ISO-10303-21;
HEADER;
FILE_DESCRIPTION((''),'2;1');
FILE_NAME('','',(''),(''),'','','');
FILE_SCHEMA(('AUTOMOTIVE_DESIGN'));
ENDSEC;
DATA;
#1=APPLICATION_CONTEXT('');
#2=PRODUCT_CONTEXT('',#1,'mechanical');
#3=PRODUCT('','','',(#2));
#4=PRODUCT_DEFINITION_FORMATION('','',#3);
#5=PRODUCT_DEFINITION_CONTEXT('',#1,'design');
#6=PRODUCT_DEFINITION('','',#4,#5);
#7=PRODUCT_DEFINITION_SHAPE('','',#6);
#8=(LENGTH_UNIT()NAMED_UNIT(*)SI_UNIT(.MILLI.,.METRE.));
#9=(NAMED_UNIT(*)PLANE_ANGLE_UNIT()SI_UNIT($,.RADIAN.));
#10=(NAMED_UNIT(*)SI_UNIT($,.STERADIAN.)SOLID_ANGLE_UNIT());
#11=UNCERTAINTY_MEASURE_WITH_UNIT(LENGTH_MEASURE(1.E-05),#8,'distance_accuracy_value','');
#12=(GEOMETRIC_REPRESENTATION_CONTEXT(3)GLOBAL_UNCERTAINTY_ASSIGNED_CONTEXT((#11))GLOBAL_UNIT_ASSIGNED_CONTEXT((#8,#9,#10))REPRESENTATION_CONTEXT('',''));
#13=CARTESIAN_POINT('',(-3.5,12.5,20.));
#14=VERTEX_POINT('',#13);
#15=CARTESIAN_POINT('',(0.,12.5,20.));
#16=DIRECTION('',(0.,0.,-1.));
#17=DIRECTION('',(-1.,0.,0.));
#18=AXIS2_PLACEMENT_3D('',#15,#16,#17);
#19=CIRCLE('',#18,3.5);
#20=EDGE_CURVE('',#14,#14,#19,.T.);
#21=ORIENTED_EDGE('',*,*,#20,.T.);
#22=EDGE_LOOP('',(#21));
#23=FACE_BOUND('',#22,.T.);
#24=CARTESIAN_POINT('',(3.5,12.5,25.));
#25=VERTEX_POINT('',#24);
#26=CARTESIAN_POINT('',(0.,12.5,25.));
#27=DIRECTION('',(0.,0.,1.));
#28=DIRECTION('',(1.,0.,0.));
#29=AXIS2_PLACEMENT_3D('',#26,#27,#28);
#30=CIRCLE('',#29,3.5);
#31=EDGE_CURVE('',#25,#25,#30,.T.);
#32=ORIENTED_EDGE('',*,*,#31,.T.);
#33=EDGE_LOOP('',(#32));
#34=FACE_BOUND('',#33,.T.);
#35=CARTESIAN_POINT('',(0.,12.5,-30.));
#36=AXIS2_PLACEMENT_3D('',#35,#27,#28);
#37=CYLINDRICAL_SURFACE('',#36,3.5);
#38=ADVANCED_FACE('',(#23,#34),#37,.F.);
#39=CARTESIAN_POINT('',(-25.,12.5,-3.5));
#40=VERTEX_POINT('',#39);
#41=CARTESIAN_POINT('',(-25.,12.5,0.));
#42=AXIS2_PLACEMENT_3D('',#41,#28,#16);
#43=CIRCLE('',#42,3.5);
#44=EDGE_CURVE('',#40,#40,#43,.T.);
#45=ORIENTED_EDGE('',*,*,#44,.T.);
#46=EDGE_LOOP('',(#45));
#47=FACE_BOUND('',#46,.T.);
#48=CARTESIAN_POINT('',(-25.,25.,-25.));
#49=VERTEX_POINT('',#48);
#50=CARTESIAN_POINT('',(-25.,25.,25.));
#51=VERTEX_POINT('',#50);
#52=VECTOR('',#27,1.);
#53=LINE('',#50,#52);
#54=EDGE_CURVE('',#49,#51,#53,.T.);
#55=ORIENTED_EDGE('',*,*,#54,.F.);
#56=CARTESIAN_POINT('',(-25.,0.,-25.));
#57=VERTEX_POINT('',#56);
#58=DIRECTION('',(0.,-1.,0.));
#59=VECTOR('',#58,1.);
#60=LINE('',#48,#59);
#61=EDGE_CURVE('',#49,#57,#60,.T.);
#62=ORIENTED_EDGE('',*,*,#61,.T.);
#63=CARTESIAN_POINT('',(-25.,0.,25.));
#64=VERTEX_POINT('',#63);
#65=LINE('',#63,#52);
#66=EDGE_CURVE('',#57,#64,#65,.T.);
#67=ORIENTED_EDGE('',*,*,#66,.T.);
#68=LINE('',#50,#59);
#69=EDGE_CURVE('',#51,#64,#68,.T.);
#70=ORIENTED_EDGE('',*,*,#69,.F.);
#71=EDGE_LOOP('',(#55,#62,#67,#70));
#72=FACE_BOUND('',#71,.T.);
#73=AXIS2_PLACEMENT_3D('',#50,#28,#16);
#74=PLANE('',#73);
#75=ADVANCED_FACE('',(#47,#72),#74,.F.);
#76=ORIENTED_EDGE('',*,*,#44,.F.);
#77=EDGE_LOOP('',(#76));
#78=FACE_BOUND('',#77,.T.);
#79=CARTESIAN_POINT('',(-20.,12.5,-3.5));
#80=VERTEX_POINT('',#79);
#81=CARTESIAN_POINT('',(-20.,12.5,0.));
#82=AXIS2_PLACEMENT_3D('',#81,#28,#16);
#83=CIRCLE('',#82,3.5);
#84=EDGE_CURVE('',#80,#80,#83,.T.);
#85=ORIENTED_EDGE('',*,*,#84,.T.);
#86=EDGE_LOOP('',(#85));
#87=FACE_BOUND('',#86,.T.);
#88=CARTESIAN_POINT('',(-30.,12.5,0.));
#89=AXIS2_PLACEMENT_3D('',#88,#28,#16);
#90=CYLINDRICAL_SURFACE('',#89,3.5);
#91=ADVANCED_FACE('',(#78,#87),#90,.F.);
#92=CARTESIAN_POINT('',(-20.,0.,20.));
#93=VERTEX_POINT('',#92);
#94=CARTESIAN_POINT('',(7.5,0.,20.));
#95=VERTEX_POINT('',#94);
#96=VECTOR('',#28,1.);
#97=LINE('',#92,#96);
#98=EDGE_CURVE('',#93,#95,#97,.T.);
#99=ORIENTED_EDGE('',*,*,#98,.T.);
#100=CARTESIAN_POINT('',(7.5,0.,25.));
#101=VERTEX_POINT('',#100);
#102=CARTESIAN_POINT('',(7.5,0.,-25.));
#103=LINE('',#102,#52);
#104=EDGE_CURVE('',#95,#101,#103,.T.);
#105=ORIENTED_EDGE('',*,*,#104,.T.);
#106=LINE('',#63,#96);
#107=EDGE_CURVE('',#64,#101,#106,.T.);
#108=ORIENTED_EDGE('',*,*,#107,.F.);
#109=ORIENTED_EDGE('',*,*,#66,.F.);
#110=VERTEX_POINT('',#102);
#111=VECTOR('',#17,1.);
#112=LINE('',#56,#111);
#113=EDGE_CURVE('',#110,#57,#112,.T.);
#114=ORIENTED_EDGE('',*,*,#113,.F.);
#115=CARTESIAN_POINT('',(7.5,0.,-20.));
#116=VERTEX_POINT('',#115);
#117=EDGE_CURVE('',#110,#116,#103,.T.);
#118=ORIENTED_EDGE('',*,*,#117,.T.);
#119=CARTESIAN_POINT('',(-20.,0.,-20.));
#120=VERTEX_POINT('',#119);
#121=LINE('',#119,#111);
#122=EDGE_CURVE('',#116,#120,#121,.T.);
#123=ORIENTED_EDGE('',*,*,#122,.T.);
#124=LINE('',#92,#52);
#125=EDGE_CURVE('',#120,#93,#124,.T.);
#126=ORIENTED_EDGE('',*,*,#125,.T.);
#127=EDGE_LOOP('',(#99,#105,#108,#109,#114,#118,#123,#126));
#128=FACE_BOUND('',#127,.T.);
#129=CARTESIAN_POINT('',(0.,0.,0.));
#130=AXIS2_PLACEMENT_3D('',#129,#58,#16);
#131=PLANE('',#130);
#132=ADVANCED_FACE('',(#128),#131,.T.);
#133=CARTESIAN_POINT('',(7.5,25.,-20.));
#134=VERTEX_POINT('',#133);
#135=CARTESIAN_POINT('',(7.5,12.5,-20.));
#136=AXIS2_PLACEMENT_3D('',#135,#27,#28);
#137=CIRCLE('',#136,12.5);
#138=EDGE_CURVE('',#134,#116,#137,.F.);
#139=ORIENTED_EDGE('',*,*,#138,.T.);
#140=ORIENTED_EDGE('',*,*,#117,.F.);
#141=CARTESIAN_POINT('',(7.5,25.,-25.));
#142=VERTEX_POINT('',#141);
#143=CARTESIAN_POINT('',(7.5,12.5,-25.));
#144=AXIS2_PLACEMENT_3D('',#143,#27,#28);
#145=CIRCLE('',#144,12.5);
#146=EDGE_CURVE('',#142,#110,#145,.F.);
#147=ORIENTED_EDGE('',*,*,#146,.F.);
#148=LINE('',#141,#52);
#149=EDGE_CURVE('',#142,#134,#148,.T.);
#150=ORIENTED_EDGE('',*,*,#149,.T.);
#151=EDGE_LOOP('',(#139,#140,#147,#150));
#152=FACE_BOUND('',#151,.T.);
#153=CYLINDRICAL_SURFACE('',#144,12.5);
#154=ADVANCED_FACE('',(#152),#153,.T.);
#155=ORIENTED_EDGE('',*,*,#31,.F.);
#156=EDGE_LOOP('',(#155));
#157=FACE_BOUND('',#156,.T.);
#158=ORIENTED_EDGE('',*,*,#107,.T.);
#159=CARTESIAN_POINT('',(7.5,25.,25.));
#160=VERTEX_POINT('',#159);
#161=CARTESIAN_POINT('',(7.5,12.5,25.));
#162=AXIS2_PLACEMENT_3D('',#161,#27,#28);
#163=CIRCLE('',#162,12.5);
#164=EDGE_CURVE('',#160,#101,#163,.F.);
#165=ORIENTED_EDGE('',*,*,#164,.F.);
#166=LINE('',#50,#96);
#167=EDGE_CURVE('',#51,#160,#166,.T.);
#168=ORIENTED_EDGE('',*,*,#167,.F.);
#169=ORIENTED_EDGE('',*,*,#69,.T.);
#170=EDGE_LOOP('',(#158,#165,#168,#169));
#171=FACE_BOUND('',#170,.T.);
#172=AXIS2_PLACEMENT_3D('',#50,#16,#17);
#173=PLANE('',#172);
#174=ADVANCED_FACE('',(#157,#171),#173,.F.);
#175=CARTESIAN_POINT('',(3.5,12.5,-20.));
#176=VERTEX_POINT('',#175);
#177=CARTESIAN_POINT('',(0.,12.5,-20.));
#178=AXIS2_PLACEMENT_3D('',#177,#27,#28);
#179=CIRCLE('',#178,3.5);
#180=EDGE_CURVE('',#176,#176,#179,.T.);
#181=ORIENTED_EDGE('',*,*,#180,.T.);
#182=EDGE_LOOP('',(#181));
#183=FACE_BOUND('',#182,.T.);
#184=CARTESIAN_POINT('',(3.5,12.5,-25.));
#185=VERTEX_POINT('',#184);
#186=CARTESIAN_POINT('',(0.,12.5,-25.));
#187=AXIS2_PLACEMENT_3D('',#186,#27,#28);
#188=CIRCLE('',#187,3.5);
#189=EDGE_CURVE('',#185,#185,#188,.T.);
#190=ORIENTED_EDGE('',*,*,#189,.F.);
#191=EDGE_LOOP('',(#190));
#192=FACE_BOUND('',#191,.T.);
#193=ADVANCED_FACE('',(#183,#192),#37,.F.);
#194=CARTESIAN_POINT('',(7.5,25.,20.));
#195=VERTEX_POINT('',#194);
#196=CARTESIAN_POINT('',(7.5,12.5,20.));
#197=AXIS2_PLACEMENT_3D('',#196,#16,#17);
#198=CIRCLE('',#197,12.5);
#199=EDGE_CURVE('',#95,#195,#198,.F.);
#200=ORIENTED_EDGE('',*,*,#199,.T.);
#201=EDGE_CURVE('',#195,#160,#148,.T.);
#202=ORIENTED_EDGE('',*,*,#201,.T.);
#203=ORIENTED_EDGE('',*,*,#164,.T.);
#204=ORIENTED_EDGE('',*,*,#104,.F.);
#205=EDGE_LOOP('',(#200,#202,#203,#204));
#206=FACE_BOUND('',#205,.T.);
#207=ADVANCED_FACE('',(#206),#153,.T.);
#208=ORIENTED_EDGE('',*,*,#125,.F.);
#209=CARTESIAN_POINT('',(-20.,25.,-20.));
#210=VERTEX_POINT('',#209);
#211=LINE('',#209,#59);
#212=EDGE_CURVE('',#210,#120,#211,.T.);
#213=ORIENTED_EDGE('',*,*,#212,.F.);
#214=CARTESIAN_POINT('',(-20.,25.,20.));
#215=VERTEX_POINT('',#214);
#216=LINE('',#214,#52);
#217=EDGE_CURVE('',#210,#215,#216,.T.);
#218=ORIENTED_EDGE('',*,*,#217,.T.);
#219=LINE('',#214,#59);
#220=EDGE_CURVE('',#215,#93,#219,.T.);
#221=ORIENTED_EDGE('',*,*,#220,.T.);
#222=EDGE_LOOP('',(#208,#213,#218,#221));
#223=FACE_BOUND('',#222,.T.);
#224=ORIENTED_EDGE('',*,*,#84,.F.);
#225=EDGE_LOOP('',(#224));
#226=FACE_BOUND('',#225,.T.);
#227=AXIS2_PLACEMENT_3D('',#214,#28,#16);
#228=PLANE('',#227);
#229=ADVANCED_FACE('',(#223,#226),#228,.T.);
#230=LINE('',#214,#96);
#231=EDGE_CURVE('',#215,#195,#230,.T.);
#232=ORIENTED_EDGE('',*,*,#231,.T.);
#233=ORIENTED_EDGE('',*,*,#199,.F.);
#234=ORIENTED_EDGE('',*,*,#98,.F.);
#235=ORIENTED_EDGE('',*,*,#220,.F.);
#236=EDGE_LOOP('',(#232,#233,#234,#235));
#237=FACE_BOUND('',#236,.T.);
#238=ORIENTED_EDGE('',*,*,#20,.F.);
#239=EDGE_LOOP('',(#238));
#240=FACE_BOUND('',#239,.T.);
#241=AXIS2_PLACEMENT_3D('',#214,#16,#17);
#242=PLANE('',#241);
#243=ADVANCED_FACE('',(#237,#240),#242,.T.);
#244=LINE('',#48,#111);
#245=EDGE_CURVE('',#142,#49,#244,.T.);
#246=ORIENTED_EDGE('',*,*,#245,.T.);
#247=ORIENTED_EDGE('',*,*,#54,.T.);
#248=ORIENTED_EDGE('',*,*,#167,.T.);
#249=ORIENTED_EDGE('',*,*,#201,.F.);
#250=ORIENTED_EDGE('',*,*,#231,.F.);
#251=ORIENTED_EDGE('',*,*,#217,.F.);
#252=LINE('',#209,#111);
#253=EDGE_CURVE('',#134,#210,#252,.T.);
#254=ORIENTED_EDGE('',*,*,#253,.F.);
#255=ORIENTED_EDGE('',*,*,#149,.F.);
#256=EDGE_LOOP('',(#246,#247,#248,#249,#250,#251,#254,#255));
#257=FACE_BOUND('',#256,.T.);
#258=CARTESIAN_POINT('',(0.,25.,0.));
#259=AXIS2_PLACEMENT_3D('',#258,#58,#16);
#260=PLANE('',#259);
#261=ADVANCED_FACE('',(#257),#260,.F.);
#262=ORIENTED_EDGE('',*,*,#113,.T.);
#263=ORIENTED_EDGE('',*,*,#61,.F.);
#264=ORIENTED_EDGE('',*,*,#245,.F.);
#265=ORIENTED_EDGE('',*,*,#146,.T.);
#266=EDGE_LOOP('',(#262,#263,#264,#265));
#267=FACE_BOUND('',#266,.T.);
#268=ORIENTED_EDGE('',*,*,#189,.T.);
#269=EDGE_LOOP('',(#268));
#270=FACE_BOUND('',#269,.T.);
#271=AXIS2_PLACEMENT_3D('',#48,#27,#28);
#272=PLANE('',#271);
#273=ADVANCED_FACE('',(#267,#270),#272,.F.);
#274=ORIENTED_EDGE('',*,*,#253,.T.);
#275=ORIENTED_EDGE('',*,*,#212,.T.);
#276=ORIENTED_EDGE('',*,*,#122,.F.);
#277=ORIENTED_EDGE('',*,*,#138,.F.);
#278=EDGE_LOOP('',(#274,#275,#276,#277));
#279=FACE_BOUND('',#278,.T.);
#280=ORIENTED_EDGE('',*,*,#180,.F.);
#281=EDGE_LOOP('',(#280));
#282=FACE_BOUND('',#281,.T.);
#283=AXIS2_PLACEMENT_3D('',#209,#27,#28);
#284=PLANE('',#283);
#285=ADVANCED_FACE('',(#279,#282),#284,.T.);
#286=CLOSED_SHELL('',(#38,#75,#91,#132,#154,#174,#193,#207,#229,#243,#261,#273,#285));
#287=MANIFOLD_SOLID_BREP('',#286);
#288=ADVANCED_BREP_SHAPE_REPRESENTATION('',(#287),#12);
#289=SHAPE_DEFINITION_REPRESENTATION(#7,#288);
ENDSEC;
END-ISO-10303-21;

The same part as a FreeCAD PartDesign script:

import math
import FreeCAD as App
import Part
import Sketcher

doc = App.newDocument("Part")
body = doc.addObject("PartDesign::Body", "Body")

sketch1 = body.newObject("Sketcher::SketchObject", "Sketch")
sketch1.AttachmentSupport = (doc.getObject("XZ_Plane"), [""])
sketch1.MapMode = "FlatFace"
sketch1.addGeometry([
    Part.LineSegment(App.Vector(-25, -25, 0), App.Vector(-25, 25, 0)),
    Part.LineSegment(App.Vector(-25, 25, 0), App.Vector(25, 25, 0)),
    Part.LineSegment(App.Vector(25, 25, 0), App.Vector(25, -25, 0)),
    Part.LineSegment(App.Vector(25, -25, 0), App.Vector(-25, -25, 0)),
    Part.LineSegment(App.Vector(20, 20, 0), App.Vector(-20, 20, 0)),
    Part.LineSegment(App.Vector(-20, 20, 0), App.Vector(-20, -20, 0)),
    Part.LineSegment(App.Vector(-20, -20, 0), App.Vector(20, -20, 0)),
    Part.LineSegment(App.Vector(20, -20, 0), App.Vector(20, 20, 0)),
], False)
sketch1.addConstraint([
    Sketcher.Constraint("Coincident", 0, 2, 1, 1),
    Sketcher.Constraint("Coincident", 1, 2, 2, 1),
    Sketcher.Constraint("Coincident", 2, 2, 3, 1),
    Sketcher.Constraint("Coincident", 3, 2, 0, 1),
    Sketcher.Constraint("Coincident", 4, 2, 5, 1),
    Sketcher.Constraint("Coincident", 5, 2, 6, 1),
    Sketcher.Constraint("Coincident", 6, 2, 7, 1),
    Sketcher.Constraint("Coincident", 7, 2, 4, 1),
    Sketcher.Constraint("Vertical", 0),
    Sketcher.Constraint("Horizontal", 1),
    Sketcher.Constraint("Vertical", 2),
    Sketcher.Constraint("Horizontal", 3),
    Sketcher.Constraint("Horizontal", 4),
    Sketcher.Constraint("Vertical", 5),
    Sketcher.Constraint("Horizontal", 6),
    Sketcher.Constraint("Vertical", 7),
    Sketcher.Constraint("Symmetric", 0, 2, 2, 2, -1, 1),
    Sketcher.Constraint("Symmetric", 4, 2, 6, 2, -1, 1),
    Sketcher.Constraint("Equal", 3, 0),
    Sketcher.Constraint("Equal", 6, 5),
    Sketcher.Constraint("DistanceX", 1, 1, 1, 2, 50.0),
    Sketcher.Constraint("DistanceX", 4, 2, 4, 1, 40.0),
])
pad1 = body.newObject("PartDesign::Pad", "Pad")
pad1.Profile = sketch1
pad1.Length = 25
pad1.Reversed = True

sketch2 = body.newObject("Sketcher::SketchObject", "Sketch001")
sketch2.AttachmentSupport = (doc.getObject("YZ_Plane"), [""])
sketch2.MapMode = "FlatFace"
sketch2.AttachmentOffset = App.Placement(App.Vector(0, 0, 25), App.Rotation())
sketch2.addGeometry(Part.Circle(App.Vector(12.5, 0, 0), App.Vector(0, 0, 1), 3.5), False)
sketch2.addConstraint([
    Sketcher.Constraint("PointOnObject", 0, 3, -1),
    Sketcher.Constraint("Diameter", 0, 7.0),
    Sketcher.Constraint("DistanceX", -1, 1, 0, 3, 12.5),
])
pocket1 = body.newObject("PartDesign::Pocket", "Pocket")
pocket1.Profile = sketch2
pocket1.Length = 55

sketch3 = body.newObject("Sketcher::SketchObject", "Sketch002")
sketch3.AttachmentSupport = (doc.getObject("XY_Plane"), [""])
sketch3.MapMode = "FlatFace"
sketch3.AttachmentOffset = App.Placement(App.Vector(0, 0, 25), App.Rotation())
sketch3.addGeometry(Part.Circle(App.Vector(0, 12.5, 0), App.Vector(0, 0, 1), 3.5), False)
sketch3.addConstraint([
    Sketcher.Constraint("PointOnObject", 0, 3, -2),
    Sketcher.Constraint("Diameter", 0, 7.0),
    Sketcher.Constraint("DistanceY", -1, 1, 0, 3, 12.5),
])
pocket2 = body.newObject("PartDesign::Pocket", "Pocket001")
pocket2.Profile = sketch3
pocket2.Length = 55

sketch4 = body.newObject("Sketcher::SketchObject", "Sketch003")
sketch4.AttachmentSupport = (doc.getObject("XY_Plane"), [""])
sketch4.MapMode = "FlatFace"
sketch4.AttachmentOffset = App.Placement(App.Vector(0, 0, 25), App.Rotation())
sketch4.addGeometry([
    Part.LineSegment(App.Vector(25, 25, 0), App.Vector(8, 25, 0)),
    Part.ArcOfCircle(Part.Circle(App.Vector(8, 12, 0), App.Vector(0, 0, 1), 12), math.radians(-90), math.radians(90)),
    Part.LineSegment(App.Vector(8, 0, 0), App.Vector(25, 0, 0)),
    Part.LineSegment(App.Vector(25, 0, 0), App.Vector(25, 25, 0)),
], False)
sketch4.addConstraint([
    Sketcher.Constraint("Tangent", 0, 2, 1, 2),
    Sketcher.Constraint("Tangent", 1, 1, 2, 1),
    Sketcher.Constraint("Coincident", 2, 2, 3, 1),
    Sketcher.Constraint("Coincident", 3, 2, 0, 1),
    Sketcher.Constraint("Horizontal", 0),
    Sketcher.Constraint("Horizontal", 2),
    Sketcher.Constraint("Vertical", 3),
    Sketcher.Constraint("PointOnObject", 1, 1, -1),
    Sketcher.Constraint("Radius", 1, 12.5),
    Sketcher.Constraint("DistanceX", 0, 2, 0, 1, 17.5),
    Sketcher.Constraint("DistanceX", -1, 1, 2, 2, 25.0),
])
pocket3 = body.newObject("PartDesign::Pocket", "Pocket002")
pocket3.Profile = sketch4
pocket3.Type = "ThroughAll"

doc.recompute()
